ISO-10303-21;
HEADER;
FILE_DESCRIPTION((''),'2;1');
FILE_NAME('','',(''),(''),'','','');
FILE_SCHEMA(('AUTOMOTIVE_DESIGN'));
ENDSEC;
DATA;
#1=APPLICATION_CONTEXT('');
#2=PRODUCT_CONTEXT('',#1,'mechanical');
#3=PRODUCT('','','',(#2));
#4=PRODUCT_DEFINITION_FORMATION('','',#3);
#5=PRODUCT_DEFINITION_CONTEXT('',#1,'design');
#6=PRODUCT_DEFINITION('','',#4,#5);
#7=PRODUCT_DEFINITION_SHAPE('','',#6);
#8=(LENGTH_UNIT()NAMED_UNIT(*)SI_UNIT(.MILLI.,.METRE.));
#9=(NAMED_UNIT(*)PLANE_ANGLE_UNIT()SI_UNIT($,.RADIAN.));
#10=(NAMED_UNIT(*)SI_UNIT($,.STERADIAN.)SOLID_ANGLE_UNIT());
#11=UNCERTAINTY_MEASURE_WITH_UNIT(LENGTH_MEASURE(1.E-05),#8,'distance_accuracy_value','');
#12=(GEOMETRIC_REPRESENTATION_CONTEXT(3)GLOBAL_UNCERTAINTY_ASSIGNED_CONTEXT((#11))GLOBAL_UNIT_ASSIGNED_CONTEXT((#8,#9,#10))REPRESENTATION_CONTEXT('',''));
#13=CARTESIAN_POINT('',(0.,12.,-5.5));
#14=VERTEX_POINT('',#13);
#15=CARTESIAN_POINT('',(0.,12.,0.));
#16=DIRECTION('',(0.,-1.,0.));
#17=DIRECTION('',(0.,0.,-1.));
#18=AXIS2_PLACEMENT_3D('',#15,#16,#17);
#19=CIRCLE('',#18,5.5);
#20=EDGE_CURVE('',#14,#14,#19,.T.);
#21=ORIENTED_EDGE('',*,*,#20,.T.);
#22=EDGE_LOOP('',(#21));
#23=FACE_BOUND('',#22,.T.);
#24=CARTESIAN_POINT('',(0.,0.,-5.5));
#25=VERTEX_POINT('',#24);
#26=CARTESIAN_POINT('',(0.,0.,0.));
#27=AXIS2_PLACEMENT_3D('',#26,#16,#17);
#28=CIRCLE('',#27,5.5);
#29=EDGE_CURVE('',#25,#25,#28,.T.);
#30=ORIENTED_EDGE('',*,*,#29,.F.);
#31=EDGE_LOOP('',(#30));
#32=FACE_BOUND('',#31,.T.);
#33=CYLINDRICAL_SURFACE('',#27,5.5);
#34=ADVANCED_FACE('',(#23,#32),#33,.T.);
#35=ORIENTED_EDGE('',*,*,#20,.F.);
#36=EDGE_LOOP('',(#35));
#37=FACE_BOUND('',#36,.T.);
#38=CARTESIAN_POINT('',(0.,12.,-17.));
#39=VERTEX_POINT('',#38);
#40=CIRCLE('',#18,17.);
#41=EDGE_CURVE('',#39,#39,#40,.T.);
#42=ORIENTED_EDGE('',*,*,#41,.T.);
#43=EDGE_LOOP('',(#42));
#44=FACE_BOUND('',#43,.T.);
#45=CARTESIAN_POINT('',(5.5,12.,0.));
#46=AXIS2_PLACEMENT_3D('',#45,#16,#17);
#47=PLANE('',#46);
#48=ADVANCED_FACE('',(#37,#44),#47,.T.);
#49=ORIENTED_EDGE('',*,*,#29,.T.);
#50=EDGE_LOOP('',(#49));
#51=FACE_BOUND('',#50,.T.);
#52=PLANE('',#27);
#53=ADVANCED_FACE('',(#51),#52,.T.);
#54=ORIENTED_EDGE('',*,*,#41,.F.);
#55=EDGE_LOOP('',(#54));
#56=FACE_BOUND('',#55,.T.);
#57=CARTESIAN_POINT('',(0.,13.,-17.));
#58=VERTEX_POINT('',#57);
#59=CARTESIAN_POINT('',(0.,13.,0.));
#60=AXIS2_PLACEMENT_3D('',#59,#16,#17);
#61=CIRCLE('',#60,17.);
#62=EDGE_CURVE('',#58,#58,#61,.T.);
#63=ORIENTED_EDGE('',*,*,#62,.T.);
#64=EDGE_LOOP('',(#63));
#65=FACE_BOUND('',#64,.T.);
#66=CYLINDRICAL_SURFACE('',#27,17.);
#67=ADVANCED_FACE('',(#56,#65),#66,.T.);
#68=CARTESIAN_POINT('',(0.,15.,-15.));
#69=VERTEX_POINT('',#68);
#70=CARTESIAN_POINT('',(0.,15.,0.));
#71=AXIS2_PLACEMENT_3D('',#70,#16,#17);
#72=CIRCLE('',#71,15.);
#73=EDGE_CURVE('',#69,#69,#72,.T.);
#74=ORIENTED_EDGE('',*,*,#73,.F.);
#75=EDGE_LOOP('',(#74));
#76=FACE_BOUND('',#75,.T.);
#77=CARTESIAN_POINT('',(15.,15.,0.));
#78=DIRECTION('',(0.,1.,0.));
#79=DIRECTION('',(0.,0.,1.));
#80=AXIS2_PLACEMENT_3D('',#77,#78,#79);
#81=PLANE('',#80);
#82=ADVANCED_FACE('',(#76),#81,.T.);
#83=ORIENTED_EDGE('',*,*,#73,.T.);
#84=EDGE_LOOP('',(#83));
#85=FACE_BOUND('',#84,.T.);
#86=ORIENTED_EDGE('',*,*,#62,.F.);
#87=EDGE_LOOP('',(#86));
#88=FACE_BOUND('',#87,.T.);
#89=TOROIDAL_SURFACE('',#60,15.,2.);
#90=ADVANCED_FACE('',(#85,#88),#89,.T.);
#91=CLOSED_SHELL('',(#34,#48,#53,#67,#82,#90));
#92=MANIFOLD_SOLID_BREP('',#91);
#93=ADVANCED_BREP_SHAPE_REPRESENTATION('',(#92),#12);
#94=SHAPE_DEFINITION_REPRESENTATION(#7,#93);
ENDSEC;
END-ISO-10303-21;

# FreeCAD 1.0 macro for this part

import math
import FreeCAD as App
import Part
import Sketcher

V = App.Vector
Q = App.Units.Quantity

doc = App.newDocument("Part")
params = doc.addObject("Spreadsheet::Sheet", "Params")
for row, (alias, value) in enumerate([
    ("sketch1_radius", "2 mm"),
    ("sketch1_width", "15 mm"),
    ("sketch1_height", "12 mm"),
    ("sketch1_width2", "5.5 mm"),
    ("revolution_angle", "360 deg"),
], start=1):
    params.set(f"A{row}", alias)
    params.set(f"B{row}", "=" + value)
    params.setAlias(f"B{row}", alias)

body = doc.addObject("PartDesign::Body", "Body")

sketch1 = body.newObject("Sketcher::SketchObject", "Sketch")
sketch1.AttachmentSupport = (doc.getObject("XY_Plane"), [""])
sketch1.MapMode = "FlatFace"
sketch1.addGeometry([
    Part.LineSegment(V(0, 0, 0), V(5.5, 0, 0)),
    Part.LineSegment(V(5.5, 0, 0), V(5.5, 12, 0)),
    Part.LineSegment(V(5.5, 12, 0), V(17, 12, 0)),
    Part.LineSegment(V(17, 12, 0), V(17, 13, 0)),
    Part.ArcOfCircle(Part.Circle(V(15, 13, 0), V(0, 0, 1), 2), math.radians(0), math.radians(90)),
    Part.LineSegment(V(15, 15, 0), V(0, 15, 0)),
    Part.LineSegment(V(0, 15, 0), V(0, 0, 0)),
], False)
sketch1.addConstraint([
    Sketcher.Constraint("Coincident", 0, 2, 1, 1),
    Sketcher.Constraint("Coincident", 1, 2, 2, 1),
    Sketcher.Constraint("Coincident", 2, 2, 3, 1),
    Sketcher.Constraint("Tangent", 3, 2, 4, 1),
    Sketcher.Constraint("Tangent", 4, 2, 5, 1),
    Sketcher.Constraint("Coincident", 5, 2, 6, 1),
    Sketcher.Constraint("Coincident", 6, 2, 0, 1),
    Sketcher.Constraint("Horizontal", 0),
    Sketcher.Constraint("Vertical", 1),
    Sketcher.Constraint("Horizontal", 2),
    Sketcher.Constraint("Vertical", 3),
    Sketcher.Constraint("Horizontal", 5),
    Sketcher.Constraint("Vertical", 6),
    Sketcher.Constraint("Coincident", 6, 2, -1, 1),
    Sketcher.Constraint("Equal", 5, 6),
    Sketcher.Constraint("Radius", 4, Q("2 mm")),
    Sketcher.Constraint("DistanceX", 5, 2, 5, 1, Q("15 mm")),
    Sketcher.Constraint("DistanceY", 1, 1, 1, 2, Q("12 mm")),
    Sketcher.Constraint("DistanceX", 0, 1, 0, 2, Q("5.5 mm")),
])
sketch1.setExpression("Constraints[15]", "Params.sketch1_radius")
sketch1.setExpression("Constraints[16]", "Params.sketch1_width")
sketch1.setExpression("Constraints[17]", "Params.sketch1_height")
sketch1.setExpression("Constraints[18]", "Params.sketch1_width2")
revolution = body.newObject("PartDesign::Revolution", "Revolution")
revolution.Profile = sketch1
revolution.ReferenceAxis = (sketch1, ["V_Axis"])
revolution.setExpression("Angle", "Params.revolution_angle")

doc.recompute()
